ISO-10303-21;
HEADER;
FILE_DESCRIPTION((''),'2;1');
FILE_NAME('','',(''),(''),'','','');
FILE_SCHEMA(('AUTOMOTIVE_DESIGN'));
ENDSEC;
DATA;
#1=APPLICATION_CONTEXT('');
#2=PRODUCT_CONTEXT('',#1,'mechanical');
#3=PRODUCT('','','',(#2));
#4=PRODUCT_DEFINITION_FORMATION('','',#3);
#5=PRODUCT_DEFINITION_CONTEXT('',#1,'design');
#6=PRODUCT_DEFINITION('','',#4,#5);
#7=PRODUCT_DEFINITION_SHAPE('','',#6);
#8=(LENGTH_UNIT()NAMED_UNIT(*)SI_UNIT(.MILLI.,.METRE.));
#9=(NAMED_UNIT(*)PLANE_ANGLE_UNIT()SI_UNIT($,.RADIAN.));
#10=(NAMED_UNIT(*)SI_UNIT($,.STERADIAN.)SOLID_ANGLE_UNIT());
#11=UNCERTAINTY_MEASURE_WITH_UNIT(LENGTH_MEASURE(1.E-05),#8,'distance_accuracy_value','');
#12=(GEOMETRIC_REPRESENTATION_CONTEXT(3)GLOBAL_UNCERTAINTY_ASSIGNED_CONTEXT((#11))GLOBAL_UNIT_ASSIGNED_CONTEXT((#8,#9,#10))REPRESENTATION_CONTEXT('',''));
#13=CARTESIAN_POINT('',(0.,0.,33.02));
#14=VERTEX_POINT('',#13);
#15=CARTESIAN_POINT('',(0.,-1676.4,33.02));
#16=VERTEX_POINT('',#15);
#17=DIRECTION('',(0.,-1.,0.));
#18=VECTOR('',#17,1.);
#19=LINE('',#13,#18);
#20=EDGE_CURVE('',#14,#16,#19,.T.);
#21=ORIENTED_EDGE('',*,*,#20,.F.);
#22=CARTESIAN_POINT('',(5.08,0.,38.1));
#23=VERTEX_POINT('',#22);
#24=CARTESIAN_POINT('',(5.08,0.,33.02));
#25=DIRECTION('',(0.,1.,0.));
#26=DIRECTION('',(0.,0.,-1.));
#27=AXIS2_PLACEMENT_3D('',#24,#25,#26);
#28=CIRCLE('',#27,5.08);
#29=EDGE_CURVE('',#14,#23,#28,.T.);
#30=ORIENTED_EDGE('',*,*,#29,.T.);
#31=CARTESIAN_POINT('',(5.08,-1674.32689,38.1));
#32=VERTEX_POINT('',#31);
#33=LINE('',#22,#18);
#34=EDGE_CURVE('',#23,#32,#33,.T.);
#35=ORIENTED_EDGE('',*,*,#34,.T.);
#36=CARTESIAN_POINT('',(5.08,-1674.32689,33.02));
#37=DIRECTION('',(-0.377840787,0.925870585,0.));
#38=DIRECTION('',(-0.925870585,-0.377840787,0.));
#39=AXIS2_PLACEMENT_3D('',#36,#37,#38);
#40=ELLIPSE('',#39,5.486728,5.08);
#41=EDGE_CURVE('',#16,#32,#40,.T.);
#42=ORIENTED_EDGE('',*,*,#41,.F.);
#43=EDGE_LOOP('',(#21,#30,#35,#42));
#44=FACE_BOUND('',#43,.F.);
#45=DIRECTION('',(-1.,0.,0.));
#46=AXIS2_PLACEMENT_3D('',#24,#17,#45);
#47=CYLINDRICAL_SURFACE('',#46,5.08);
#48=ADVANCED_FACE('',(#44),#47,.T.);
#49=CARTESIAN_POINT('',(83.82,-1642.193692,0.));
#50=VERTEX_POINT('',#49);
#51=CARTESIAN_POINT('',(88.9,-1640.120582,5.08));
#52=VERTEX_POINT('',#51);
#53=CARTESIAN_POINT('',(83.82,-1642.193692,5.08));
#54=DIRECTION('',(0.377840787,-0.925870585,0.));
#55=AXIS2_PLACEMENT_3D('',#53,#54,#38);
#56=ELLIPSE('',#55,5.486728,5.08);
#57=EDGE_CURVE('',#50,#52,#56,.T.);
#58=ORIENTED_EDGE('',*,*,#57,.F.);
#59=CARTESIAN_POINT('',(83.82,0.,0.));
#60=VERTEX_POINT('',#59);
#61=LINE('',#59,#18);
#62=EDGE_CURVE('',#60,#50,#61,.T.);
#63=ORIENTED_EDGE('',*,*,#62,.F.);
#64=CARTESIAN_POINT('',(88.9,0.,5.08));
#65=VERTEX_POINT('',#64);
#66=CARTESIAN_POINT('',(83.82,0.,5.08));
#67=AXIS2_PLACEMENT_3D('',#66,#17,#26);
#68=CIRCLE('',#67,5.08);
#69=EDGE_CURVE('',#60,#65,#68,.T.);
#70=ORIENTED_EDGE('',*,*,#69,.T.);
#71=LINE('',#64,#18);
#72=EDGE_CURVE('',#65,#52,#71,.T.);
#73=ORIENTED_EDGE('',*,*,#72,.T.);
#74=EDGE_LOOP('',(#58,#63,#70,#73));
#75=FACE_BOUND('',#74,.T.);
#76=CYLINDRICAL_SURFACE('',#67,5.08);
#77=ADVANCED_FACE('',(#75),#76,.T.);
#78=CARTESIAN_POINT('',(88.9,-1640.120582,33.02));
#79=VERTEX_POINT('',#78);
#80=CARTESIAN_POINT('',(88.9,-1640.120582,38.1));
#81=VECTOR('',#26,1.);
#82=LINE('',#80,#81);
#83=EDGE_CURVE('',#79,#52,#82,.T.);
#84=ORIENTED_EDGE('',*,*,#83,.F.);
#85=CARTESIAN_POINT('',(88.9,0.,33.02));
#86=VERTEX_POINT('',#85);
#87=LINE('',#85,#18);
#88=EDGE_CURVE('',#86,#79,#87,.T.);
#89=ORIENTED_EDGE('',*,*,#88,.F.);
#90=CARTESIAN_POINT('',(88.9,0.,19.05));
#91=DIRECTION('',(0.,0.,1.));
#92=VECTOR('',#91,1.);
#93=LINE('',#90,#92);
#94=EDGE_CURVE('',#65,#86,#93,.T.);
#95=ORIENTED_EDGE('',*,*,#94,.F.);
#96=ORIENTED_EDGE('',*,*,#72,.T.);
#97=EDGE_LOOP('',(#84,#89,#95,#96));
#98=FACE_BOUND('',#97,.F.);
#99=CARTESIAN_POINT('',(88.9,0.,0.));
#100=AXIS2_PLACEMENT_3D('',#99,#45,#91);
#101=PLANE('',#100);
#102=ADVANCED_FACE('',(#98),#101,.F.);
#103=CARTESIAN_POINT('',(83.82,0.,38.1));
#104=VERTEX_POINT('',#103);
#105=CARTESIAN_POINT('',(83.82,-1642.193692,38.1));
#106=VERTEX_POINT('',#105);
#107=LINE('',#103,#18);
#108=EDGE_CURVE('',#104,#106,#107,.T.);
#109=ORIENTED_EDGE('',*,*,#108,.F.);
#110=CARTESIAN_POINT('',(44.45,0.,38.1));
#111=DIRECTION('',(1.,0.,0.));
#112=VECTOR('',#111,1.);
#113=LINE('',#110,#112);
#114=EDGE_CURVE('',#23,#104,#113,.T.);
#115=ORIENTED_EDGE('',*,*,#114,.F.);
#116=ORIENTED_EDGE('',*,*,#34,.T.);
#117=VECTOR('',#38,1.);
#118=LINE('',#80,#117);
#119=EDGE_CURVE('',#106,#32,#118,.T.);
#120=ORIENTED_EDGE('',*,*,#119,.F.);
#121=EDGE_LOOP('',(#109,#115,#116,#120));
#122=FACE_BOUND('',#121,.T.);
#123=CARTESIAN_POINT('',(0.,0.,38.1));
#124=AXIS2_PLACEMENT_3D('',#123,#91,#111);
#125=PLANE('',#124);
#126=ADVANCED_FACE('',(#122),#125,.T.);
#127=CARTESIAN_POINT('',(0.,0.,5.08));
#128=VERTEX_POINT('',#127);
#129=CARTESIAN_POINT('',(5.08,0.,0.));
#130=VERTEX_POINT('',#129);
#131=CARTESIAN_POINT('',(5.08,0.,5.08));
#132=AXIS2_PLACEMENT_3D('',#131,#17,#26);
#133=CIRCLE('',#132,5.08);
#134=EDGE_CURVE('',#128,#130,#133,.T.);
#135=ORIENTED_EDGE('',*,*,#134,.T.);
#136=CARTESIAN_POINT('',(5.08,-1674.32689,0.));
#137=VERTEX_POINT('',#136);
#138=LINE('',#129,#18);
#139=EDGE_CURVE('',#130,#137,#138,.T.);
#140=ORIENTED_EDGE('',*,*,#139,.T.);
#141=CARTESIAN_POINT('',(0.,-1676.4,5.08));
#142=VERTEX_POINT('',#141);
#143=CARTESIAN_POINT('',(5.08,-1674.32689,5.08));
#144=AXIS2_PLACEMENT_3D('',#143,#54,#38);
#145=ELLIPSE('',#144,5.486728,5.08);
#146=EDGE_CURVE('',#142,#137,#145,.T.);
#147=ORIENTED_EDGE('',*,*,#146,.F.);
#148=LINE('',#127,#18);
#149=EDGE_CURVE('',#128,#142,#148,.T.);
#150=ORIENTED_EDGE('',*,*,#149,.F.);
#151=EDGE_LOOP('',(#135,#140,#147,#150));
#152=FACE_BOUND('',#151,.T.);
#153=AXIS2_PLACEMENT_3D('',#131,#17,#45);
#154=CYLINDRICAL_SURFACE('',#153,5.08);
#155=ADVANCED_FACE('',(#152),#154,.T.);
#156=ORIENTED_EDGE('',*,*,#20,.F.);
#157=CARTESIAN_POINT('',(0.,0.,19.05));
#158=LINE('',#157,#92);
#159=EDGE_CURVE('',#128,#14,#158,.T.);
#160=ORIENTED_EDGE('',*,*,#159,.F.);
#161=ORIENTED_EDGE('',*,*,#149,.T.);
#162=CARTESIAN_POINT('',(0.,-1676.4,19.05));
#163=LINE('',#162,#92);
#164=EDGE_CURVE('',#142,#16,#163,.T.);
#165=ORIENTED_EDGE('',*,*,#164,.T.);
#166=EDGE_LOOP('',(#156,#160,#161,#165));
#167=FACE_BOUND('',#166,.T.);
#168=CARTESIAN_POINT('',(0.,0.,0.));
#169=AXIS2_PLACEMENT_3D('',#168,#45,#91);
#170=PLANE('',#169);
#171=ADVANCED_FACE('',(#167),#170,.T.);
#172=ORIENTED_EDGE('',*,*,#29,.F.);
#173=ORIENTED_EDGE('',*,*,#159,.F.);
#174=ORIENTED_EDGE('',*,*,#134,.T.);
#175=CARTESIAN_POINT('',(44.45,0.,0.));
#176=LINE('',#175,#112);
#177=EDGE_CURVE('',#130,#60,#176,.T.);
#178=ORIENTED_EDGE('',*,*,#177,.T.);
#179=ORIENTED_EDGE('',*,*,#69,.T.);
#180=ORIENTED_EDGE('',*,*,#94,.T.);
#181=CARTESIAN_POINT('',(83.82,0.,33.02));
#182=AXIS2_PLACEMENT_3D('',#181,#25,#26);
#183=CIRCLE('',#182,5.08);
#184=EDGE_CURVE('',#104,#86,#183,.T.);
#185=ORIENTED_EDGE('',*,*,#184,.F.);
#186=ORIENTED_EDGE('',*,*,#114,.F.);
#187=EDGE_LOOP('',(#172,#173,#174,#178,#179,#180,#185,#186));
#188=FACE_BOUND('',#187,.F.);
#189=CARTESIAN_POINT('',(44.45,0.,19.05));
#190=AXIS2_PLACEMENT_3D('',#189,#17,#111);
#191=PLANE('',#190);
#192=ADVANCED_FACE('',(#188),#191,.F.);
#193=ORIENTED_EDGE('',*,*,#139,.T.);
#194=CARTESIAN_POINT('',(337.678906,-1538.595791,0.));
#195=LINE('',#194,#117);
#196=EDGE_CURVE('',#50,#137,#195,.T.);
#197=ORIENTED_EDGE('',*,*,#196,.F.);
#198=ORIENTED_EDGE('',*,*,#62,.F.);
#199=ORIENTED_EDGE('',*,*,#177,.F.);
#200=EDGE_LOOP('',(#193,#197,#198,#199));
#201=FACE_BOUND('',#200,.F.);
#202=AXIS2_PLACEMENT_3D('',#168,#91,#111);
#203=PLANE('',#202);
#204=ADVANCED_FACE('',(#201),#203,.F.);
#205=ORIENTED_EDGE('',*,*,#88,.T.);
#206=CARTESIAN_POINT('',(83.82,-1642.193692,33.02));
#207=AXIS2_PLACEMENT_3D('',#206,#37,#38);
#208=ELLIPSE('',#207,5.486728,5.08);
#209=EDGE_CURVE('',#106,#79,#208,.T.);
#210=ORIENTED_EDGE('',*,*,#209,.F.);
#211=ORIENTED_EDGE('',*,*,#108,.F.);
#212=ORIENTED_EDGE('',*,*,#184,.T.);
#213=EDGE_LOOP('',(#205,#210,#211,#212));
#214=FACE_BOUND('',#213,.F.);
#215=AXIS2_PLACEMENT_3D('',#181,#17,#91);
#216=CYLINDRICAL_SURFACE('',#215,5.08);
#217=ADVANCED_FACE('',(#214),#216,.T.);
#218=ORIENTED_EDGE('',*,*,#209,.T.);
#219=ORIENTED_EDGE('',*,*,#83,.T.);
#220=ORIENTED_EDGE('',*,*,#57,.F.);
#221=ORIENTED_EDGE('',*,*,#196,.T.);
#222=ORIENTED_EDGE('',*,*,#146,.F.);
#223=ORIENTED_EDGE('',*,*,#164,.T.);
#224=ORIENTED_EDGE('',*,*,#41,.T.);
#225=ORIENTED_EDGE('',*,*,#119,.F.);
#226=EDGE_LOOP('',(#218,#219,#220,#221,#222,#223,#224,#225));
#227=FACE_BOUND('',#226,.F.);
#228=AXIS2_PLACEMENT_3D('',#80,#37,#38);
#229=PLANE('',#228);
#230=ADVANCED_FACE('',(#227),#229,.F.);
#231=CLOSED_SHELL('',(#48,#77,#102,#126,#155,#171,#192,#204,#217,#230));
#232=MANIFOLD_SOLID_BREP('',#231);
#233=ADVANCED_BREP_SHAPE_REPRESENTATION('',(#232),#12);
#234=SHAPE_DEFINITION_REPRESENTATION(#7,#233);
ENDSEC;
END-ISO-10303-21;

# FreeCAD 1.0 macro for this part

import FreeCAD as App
import Part
import Sketcher

V = App.Vector
Q = App.Units.Quantity


def edges_at(feature, points):
    """Names of the edges that pass closest to the given points."""
    edges = feature.Shape.Edges
    near = lambda p: min(range(len(edges)), key=lambda i: edges[i].distToShape(Part.Vertex(*p))[0])
    return sorted({f"Edge{near(p) + 1}" for p in points})

doc = App.newDocument("Part")
params = doc.addObject("Spreadsheet::Sheet", "Params")
for row, (alias, value) in enumerate([
    ("sketch1_width", "3.5 in"),
    ("sketch1_height", "1.5 in"),
    ("pad1_length", "66 in"),
    ("sketch2_width", "3.5 in"),
    ("pocket1_length", "3.31 in"),
    ("fillet_radius", "0.2 in"),
], start=1):
    params.set(f"A{row}", alias)
    params.set(f"B{row}", "=" + value)
    params.setAlias(f"B{row}", alias)

body = doc.addObject("PartDesign::Body", "Body")

sketch1 = body.newObject("Sketcher::SketchObject", "Sketch")
sketch1.AttachmentSupport = (doc.getObject("XZ_Plane"), [""])
sketch1.MapMode = "FlatFace"
sketch1.addGeometry(Part.LineSegment(V(0, 38.1, 0), V(0, 0, 0)), False)
sketch1.addGeometry(Part.LineSegment(V(0, 0, 0), V(88.9, 0, 0)), False)
sketch1.addGeometry(Part.LineSegment(V(88.9, 0, 0), V(88.9, 38.1, 0)), False)
sketch1.addGeometry(Part.LineSegment(V(88.9, 38.1, 0), V(0, 38.1, 0)), False)
sketch1.addConstraint(Sketcher.Constraint("Coincident", 0, 2, 1, 1))
sketch1.addConstraint(Sketcher.Constraint("Coincident", 1, 2, 2, 1))
sketch1.addConstraint(Sketcher.Constraint("Coincident", 2, 2, 3, 1))
sketch1.addConstraint(Sketcher.Constraint("Coincident", 3, 2, 0, 1))
sketch1.addConstraint(Sketcher.Constraint("Vertical", 0))
sketch1.addConstraint(Sketcher.Constraint("Horizontal", 1))
sketch1.addConstraint(Sketcher.Constraint("Vertical", 2))
sketch1.addConstraint(Sketcher.Constraint("Horizontal", 3))
sketch1.addConstraint(Sketcher.Constraint("Coincident", 0, 2, -1, 1))
sketch1.addConstraint(Sketcher.Constraint("DistanceX", 1, 1, 1, 2, Q("3.5 in")))
sketch1.addConstraint(Sketcher.Constraint("DistanceY", 0, 2, 0, 1, Q("1.5 in")))
sketch1.setExpression("Constraints[9]", "Params.sketch1_width")
sketch1.setExpression("Constraints[10]", "Params.sketch1_height")
pad1 = body.newObject("PartDesign::Pad", "Pad")
pad1.Profile = sketch1
pad1.setExpression("Length", "Params.pad1_length")

sketch2 = body.newObject("Sketcher::SketchObject", "Sketch001")
sketch2.AttachmentSupport = (doc.getObject("XY_Plane"), [""])
sketch2.MapMode = "FlatFace"
sketch2.AttachmentOffset = App.Placement(V(0, 0, 1.5 * 25.4), App.Rotation())
sketch2.addGeometry(Part.LineSegment(V(88.9, -1640.120582, 0), V(0, -1676.4, 0)), False)
sketch2.addGeometry(Part.LineSegment(V(0, -1676.4, 0), V(88.9, -1676.4, 0)), False)
sketch2.addGeometry(Part.LineSegment(V(88.9, -1676.4, 0), V(88.9, -1640.120582, 0)), False)
sketch2.addConstraint(Sketcher.Constraint("Coincident", 0, 2, 1, 1))
sketch2.addConstraint(Sketcher.Constraint("Coincident", 1, 2, 2, 1))
sketch2.addConstraint(Sketcher.Constraint("Coincident", 2, 2, 0, 1))
sketch2.addConstraint(Sketcher.Constraint("Horizontal", 1))
sketch2.addConstraint(Sketcher.Constraint("Vertical", 2))
sketch2.addConstraint(Sketcher.Constraint("PointOnObject", 0, 2, -2))
sketch2.addConstraint(Sketcher.Constraint("DistanceX", 1, 1, 1, 2, Q("3.5 in")))
sketch2.addConstraint(Sketcher.Constraint("DistanceY", 0, 2, -1, 1, Q("66 in")))
sketch2.addConstraint(Sketcher.Constraint("Angle", 0, Q("-157.8 deg")))
sketch2.setExpression("Constraints[6]", "Params.sketch2_width")
pocket1 = body.newObject("PartDesign::Pocket", "Pocket")
pocket1.Profile = sketch2
pocket1.setExpression("Length", "Params.pocket1_length")
doc.recompute()

fillet = body.newObject("PartDesign::Fillet", "Fillet")
fillet.Base = (pocket1, edges_at(pocket1, [
    (0, -838.2, 38.1),
    (88.9, -820.06, 38.1),
    (0, -838.2, 0),
    (88.9, -820.06, 0),
]))
fillet.setExpression("Radius", "Params.fillet_radius")

doc.recompute()
